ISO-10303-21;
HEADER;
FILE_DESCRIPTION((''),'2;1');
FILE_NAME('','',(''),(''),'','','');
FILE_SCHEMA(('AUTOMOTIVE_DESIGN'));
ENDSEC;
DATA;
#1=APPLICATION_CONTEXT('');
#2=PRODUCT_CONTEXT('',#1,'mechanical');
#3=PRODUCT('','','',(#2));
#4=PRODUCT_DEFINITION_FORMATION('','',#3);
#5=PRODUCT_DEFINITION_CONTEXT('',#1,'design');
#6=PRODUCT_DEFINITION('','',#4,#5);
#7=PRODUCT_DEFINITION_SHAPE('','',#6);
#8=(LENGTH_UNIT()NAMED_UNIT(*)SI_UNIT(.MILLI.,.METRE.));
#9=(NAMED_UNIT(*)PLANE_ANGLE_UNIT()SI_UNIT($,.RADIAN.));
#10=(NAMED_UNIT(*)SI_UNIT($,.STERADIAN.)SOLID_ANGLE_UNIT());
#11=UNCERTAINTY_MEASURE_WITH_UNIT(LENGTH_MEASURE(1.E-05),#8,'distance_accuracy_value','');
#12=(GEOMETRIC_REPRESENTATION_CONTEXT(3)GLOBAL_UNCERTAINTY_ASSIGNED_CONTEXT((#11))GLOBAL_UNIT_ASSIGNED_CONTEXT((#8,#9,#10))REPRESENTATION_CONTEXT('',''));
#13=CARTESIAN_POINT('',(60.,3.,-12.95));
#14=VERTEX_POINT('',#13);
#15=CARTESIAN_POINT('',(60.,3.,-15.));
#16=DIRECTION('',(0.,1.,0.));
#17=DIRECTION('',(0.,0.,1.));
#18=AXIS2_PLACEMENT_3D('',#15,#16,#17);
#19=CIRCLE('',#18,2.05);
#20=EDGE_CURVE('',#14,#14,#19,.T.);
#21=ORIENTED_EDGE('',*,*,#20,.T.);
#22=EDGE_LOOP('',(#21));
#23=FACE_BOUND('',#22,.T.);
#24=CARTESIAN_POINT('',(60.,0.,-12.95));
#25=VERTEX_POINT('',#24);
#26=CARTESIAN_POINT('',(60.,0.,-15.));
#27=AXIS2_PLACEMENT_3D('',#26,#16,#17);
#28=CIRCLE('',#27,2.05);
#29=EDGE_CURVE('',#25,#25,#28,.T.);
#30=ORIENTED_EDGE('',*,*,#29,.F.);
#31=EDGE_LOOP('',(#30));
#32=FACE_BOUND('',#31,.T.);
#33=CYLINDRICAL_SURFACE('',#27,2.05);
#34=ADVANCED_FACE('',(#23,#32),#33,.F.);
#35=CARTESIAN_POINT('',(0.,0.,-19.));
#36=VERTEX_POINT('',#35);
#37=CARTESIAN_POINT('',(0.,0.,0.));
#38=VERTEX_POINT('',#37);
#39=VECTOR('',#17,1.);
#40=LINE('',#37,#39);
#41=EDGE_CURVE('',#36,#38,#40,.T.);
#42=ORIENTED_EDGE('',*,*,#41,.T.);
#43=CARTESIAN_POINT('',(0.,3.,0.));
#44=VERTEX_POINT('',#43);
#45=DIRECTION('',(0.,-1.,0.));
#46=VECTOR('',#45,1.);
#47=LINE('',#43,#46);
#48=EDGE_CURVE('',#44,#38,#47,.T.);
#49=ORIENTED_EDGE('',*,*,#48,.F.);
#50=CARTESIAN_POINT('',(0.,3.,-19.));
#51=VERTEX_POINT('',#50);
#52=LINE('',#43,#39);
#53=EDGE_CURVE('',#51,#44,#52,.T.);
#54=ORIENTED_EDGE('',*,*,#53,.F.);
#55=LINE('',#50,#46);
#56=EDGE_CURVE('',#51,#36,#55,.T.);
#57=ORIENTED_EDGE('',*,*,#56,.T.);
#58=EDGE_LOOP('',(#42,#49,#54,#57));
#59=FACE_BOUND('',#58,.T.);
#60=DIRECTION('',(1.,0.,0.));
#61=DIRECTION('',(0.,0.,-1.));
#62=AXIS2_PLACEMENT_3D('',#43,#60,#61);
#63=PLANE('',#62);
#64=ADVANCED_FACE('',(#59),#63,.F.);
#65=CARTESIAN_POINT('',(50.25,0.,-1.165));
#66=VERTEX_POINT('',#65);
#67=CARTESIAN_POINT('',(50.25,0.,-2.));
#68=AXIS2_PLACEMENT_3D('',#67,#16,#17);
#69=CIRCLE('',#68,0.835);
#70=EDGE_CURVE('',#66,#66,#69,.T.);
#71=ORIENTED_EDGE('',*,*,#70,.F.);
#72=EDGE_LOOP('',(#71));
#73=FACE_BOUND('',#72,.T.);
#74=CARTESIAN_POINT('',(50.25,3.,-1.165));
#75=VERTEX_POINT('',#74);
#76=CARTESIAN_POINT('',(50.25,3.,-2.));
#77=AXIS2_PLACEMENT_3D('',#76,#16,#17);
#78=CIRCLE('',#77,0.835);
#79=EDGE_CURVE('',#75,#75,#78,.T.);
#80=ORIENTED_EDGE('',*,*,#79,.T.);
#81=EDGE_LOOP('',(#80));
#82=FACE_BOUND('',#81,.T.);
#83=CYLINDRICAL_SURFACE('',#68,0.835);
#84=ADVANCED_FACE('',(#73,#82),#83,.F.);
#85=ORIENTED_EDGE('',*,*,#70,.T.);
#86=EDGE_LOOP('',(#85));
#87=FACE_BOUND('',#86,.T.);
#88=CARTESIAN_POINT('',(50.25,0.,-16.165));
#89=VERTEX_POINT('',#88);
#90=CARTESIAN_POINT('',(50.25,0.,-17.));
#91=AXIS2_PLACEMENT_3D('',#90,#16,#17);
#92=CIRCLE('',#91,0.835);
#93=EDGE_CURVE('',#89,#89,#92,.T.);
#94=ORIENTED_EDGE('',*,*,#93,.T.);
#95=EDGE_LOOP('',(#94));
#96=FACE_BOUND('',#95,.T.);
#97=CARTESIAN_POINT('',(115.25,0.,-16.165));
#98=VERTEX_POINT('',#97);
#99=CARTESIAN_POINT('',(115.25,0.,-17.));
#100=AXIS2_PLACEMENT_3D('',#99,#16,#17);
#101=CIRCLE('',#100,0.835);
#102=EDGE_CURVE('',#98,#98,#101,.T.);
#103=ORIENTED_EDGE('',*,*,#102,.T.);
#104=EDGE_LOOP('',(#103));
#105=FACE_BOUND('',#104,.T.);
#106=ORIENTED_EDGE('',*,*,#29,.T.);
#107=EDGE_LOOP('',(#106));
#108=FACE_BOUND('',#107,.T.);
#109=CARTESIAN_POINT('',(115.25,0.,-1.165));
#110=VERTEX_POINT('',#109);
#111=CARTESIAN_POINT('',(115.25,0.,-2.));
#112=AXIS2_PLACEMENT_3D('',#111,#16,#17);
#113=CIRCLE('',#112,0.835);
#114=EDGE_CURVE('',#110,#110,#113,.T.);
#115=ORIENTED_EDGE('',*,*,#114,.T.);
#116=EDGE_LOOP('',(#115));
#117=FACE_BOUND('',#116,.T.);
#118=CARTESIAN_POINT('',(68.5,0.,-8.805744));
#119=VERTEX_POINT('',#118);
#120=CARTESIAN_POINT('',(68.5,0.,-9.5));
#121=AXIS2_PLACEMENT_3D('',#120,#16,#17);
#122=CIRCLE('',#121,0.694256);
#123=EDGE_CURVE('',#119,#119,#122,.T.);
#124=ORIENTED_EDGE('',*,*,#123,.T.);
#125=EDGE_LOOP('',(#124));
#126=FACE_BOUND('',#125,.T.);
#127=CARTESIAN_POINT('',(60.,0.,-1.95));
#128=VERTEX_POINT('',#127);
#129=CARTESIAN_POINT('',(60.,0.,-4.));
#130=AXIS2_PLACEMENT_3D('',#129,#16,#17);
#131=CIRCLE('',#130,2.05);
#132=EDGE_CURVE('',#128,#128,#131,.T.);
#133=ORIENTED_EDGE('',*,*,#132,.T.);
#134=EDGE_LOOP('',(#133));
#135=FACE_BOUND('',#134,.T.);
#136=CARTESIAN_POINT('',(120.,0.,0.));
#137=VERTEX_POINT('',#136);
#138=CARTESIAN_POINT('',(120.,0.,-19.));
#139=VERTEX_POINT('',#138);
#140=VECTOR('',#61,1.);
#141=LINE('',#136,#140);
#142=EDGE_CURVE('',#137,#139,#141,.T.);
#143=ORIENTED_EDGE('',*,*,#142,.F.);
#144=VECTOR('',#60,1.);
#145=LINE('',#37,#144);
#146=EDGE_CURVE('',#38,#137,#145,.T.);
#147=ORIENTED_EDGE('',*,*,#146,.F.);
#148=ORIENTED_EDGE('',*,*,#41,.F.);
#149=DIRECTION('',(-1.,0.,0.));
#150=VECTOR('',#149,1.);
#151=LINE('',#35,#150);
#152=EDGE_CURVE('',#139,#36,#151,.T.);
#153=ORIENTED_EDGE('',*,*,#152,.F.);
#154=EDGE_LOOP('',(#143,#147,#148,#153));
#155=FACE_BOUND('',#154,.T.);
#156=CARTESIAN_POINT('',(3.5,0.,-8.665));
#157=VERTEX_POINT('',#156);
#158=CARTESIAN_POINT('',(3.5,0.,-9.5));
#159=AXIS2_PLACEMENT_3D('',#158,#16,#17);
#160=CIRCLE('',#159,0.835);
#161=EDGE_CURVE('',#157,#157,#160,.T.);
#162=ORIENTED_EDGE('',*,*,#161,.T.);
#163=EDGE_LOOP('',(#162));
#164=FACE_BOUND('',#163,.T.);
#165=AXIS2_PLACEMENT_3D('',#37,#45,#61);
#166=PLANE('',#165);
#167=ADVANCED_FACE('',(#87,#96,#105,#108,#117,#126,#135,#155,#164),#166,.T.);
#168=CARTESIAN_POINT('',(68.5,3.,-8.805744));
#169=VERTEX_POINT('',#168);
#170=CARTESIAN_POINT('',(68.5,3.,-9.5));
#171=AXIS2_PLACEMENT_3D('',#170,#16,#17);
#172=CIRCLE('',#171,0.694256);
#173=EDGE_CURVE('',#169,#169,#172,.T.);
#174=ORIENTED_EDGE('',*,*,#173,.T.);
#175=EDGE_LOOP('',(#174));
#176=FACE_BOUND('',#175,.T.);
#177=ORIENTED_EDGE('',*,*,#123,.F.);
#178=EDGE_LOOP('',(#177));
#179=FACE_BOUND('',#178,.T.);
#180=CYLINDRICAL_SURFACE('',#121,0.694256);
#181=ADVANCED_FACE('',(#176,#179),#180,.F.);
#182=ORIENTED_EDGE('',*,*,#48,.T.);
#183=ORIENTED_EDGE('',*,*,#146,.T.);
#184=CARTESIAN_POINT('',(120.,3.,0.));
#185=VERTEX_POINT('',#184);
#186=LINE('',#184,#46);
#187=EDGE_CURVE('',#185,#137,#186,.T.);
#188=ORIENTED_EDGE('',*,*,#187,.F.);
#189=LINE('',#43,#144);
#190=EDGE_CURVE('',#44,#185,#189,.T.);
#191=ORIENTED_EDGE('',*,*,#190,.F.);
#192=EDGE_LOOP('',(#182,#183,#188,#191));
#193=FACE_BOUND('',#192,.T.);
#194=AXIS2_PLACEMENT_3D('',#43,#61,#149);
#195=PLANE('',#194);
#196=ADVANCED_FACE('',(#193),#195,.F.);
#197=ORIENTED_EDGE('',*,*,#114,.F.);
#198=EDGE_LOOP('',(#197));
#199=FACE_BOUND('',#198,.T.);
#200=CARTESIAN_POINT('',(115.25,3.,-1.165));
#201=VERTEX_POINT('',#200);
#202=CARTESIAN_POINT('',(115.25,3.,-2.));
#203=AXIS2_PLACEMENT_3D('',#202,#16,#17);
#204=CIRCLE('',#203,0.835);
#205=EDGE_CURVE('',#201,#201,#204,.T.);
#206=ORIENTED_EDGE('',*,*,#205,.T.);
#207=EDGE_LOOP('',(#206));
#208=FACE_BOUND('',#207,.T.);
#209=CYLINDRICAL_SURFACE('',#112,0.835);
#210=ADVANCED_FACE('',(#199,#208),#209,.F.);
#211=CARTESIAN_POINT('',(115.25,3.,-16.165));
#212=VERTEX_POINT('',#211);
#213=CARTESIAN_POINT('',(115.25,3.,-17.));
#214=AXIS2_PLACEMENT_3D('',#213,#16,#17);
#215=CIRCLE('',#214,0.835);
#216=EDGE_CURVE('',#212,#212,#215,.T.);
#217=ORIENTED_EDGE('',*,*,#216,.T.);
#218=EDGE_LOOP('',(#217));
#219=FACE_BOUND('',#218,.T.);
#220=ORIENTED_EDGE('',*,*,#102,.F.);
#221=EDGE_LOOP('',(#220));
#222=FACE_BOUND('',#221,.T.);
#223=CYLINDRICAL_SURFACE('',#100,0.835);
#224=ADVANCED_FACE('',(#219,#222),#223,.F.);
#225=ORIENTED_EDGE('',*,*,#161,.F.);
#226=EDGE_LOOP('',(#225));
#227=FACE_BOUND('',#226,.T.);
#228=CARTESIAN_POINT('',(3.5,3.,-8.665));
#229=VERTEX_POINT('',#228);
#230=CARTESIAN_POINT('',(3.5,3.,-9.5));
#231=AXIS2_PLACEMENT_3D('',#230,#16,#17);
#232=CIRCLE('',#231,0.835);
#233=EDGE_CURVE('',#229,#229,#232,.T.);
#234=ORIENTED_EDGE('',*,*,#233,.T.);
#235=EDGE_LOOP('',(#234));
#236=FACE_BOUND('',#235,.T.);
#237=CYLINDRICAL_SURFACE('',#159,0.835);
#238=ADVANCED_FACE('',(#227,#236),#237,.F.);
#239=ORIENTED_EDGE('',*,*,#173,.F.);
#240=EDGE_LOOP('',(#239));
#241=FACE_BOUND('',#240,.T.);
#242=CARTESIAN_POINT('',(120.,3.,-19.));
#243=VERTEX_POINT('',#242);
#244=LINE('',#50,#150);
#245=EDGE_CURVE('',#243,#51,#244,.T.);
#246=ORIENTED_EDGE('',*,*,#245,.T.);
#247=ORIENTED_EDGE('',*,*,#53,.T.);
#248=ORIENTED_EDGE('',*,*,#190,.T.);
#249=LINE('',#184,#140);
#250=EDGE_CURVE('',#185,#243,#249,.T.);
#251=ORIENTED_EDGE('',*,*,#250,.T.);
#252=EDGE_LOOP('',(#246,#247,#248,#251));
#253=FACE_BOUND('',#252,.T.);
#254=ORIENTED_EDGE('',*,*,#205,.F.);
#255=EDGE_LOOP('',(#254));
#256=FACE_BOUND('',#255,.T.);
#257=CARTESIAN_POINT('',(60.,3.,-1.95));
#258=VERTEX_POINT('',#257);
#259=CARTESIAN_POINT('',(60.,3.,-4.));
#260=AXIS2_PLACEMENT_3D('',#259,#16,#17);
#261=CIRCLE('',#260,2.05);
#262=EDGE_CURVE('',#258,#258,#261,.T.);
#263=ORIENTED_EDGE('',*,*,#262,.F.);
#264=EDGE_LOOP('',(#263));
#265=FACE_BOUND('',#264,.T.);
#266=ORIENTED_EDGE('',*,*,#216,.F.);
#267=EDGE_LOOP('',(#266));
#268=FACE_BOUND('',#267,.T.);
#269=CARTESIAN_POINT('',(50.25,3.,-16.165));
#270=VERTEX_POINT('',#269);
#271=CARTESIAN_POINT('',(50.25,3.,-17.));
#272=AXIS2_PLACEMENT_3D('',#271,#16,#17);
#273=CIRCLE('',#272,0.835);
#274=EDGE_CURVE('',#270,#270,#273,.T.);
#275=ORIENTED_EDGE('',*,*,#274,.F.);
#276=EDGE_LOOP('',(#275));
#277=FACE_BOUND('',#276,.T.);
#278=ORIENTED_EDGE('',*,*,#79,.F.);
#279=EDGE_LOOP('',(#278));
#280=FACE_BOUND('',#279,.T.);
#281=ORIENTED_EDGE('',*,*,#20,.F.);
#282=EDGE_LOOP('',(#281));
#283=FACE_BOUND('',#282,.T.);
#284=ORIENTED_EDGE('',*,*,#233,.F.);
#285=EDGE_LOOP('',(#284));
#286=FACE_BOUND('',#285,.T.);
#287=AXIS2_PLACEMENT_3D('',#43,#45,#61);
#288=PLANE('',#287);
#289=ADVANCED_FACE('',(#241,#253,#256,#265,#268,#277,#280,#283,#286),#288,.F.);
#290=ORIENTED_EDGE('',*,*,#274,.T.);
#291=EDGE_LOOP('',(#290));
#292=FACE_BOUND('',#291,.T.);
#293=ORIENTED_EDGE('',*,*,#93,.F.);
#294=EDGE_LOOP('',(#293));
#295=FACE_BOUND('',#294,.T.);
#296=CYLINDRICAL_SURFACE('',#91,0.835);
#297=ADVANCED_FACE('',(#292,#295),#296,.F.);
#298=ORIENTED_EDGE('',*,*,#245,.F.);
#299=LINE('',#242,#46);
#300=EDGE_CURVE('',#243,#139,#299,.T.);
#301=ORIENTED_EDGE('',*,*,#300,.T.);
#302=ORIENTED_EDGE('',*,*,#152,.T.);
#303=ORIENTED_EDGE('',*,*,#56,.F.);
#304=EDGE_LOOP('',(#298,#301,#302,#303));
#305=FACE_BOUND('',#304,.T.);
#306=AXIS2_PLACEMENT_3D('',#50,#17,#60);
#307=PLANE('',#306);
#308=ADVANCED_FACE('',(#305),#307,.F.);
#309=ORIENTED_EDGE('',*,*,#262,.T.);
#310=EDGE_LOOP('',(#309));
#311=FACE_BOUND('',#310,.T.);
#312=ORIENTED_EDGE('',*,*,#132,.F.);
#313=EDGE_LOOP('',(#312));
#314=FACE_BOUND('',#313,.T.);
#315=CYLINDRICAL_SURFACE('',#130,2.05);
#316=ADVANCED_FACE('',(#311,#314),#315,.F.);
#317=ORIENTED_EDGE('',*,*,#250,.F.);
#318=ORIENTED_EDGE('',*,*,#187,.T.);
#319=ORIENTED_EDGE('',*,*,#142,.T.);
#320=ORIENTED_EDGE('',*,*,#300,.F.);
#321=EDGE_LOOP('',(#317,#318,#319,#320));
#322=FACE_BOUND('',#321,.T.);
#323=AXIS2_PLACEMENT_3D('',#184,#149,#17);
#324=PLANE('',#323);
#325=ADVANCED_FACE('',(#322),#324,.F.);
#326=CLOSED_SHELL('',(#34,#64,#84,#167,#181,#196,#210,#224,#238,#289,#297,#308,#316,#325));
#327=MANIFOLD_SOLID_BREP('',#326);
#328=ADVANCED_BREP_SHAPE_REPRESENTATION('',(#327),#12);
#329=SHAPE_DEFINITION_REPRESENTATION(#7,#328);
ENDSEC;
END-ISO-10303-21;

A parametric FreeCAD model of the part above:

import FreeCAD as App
import Part
import Sketcher
Q = App.Units.Quantity


def add_polygon(sketch, points):
    """Adds a closed chain of lines whose ends are joined by coincident constraints."""
    first, n = sketch.GeometryCount, len(points)
    for a, b in zip(points, points[1:] + points[:1]):
        sketch.addGeometry(Part.LineSegment(App.Vector(*a, 0), App.Vector(*b, 0)), False)
    for i in range(n):
        sketch.addConstraint(Sketcher.Constraint("Coincident", first + i, 2, first + (i + 1) % n, 1))

doc = App.newDocument("Part")
body = doc.addObject("PartDesign::Body", "Body")

# Sketch on XZ plane
sketch1 = doc.addObject("Sketcher::SketchObject", "Sketch")
body.addObject(sketch1)
sketch1.AttachmentSupport = (doc.XZ_Plane, [""])
sketch1.MapMode = "FlatFace"
add_polygon(sketch1, [(0, -19), (0, 0), (120, 0), (120, -19)])  # lines 0-3
sketch1.addConstraint([
    Sketcher.Constraint("Vertical", 0),
    Sketcher.Constraint("Horizontal", 1),
    Sketcher.Constraint("Vertical", 2),
    Sketcher.Constraint("Horizontal", 3),
    Sketcher.Constraint("Coincident", 0, 2, -1, 1),
    Sketcher.Constraint("DistanceX", 1, 1, 1, 2, Q("120 mm")),
    Sketcher.Constraint("DistanceY", 0, 1, 0, 2, Q("19 mm")),
])
pad1 = doc.addObject("PartDesign::Pad", "Pad")
body.addObject(pad1)
pad1.Profile = sketch1
pad1.Length = 3
pad1.Reversed = True

# Sketch on XZ plane
sketch2 = doc.addObject("Sketcher::SketchObject", "Sketch001")
body.addObject(sketch2)
sketch2.AttachmentSupport = (doc.XZ_Plane, [""])
sketch2.MapMode = "FlatFace"
sketch2.AttachmentOffset = App.Placement(App.Vector(0, 0, -3), App.Rotation())
sketch2.addGeometry([
    Part.Circle(App.Vector(3.5, -9.5, 0), App.Vector(0, 0, 1), 0.835),  # 0
    Part.Circle(App.Vector(50.25, -17, 0), App.Vector(0, 0, 1), 0.835),  # 1
    Part.Circle(App.Vector(50.25, -2, 0), App.Vector(0, 0, 1), 0.835),  # 2
    Part.Circle(App.Vector(68.5, -9.5, 0), App.Vector(0, 0, 1), 0.694256),  # 3
    Part.Circle(App.Vector(115.25, -17, 0), App.Vector(0, 0, 1), 0.835),  # 4
    Part.Circle(App.Vector(115.25, -2, 0), App.Vector(0, 0, 1), 0.835),  # 5
    Part.Circle(App.Vector(60, -15, 0), App.Vector(0, 0, 1), 2.05),  # 6
    Part.Circle(App.Vector(60, -4, 0), App.Vector(0, 0, 1), 2.05),  # 7
], False)
sketch2.addConstraint([
    Sketcher.Constraint("Equal", 0, 1),
    Sketcher.Constraint("Equal", 1, 2),
    Sketcher.Constraint("Equal", 2, 4),
    Sketcher.Constraint("Equal", 4, 5),
    Sketcher.Constraint("Equal", 6, 7),
    Sketcher.Constraint("Horizontal", 0, 3, 3, 3),
    Sketcher.Constraint("Horizontal", 1, 3, 4, 3),
    Sketcher.Constraint("Horizontal", 2, 3, 5, 3),
    Sketcher.Constraint("Vertical", 1, 3, 2, 3),
    Sketcher.Constraint("Vertical", 4, 3, 5, 3),
    Sketcher.Constraint("Vertical", 6, 3, 7, 3),
    Sketcher.Constraint("Diameter", 6, Q("4.1 mm")),
    Sketcher.Constraint("Diameter", 0, Q("1.67 mm")),
    Sketcher.Constraint("DistanceY", 1, 3, -1, 1, Q("17 mm")),
    Sketcher.Constraint("DistanceY", 2, 3, -1, 1, Q("2 mm")),
    Sketcher.Constraint("DistanceX", -1, 1, 6, 3, Q("60 mm")),
    Sketcher.Constraint("DistanceY", 6, 3, -1, 1, Q("15 mm")),
    Sketcher.Constraint("DistanceY", 7, 3, -1, 1, Q("4 mm")),
    Sketcher.Constraint("DistanceX", 0, 3, 3, 3, Q("65 mm")),
    Sketcher.Constraint("DistanceX", 1, 3, 4, 3, Q("65 mm")),
    Sketcher.Constraint("DistanceX", -1, 1, 0, 3, Q("3.5 mm")),
    Sketcher.Constraint("DistanceY", 0, 3, -1, 1, Q("9.5 mm")),
    Sketcher.Constraint("DistanceX", -1, 1, 1, 3, Q("50.25 mm")),
    Sketcher.Constraint("Diameter", 3, Q("1.388512 mm")),
])
pocket1 = doc.addObject("PartDesign::Pocket", "Pocket")
body.addObject(pocket1)
pocket1.Profile = sketch2
pocket1.Type = "ThroughAll"
pocket1.Reversed = True

doc.recompute()
